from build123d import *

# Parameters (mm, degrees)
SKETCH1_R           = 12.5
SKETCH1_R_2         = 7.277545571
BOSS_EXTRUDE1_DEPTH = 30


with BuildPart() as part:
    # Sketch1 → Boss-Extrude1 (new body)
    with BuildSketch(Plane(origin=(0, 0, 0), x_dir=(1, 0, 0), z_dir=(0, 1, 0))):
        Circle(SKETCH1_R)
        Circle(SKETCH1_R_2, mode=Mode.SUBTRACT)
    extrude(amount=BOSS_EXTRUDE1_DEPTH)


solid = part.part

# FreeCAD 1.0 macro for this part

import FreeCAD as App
import Part
import Sketcher
Q = App.Units.Quantity

doc = App.newDocument("Part")
body = doc.addObject("PartDesign::Body", "Body")

sketch1 = body.newObject("Sketcher::SketchObject", "Sketch")
sketch1.AttachmentSupport = (doc.getObject("XZ_Plane"), [""])
sketch1.MapMode = "FlatFace"
sketch1.addGeometry([
    Part.Circle(App.Vector(0, 0, 0), App.Vector(0, 0, 1), 12.5),
    Part.Circle(App.Vector(0, 0, 0), App.Vector(0, 0, 1), 7.277546),
], False)
sketch1.addConstraint([
    Sketcher.Constraint("Coincident", 0, 3, -1, 1),
    Sketcher.Constraint("Coincident", 1, 3, -1, 1),
    Sketcher.Constraint("Diameter", 0, Q("25 mm")),
    Sketcher.Constraint("Diameter", 1, Q("14.555091 mm")),
])
pad1 = body.newObject("PartDesign::Pad", "Pad")
pad1.Profile = sketch1
pad1.Length = 30
pad1.Reversed = True

doc.recompute()
